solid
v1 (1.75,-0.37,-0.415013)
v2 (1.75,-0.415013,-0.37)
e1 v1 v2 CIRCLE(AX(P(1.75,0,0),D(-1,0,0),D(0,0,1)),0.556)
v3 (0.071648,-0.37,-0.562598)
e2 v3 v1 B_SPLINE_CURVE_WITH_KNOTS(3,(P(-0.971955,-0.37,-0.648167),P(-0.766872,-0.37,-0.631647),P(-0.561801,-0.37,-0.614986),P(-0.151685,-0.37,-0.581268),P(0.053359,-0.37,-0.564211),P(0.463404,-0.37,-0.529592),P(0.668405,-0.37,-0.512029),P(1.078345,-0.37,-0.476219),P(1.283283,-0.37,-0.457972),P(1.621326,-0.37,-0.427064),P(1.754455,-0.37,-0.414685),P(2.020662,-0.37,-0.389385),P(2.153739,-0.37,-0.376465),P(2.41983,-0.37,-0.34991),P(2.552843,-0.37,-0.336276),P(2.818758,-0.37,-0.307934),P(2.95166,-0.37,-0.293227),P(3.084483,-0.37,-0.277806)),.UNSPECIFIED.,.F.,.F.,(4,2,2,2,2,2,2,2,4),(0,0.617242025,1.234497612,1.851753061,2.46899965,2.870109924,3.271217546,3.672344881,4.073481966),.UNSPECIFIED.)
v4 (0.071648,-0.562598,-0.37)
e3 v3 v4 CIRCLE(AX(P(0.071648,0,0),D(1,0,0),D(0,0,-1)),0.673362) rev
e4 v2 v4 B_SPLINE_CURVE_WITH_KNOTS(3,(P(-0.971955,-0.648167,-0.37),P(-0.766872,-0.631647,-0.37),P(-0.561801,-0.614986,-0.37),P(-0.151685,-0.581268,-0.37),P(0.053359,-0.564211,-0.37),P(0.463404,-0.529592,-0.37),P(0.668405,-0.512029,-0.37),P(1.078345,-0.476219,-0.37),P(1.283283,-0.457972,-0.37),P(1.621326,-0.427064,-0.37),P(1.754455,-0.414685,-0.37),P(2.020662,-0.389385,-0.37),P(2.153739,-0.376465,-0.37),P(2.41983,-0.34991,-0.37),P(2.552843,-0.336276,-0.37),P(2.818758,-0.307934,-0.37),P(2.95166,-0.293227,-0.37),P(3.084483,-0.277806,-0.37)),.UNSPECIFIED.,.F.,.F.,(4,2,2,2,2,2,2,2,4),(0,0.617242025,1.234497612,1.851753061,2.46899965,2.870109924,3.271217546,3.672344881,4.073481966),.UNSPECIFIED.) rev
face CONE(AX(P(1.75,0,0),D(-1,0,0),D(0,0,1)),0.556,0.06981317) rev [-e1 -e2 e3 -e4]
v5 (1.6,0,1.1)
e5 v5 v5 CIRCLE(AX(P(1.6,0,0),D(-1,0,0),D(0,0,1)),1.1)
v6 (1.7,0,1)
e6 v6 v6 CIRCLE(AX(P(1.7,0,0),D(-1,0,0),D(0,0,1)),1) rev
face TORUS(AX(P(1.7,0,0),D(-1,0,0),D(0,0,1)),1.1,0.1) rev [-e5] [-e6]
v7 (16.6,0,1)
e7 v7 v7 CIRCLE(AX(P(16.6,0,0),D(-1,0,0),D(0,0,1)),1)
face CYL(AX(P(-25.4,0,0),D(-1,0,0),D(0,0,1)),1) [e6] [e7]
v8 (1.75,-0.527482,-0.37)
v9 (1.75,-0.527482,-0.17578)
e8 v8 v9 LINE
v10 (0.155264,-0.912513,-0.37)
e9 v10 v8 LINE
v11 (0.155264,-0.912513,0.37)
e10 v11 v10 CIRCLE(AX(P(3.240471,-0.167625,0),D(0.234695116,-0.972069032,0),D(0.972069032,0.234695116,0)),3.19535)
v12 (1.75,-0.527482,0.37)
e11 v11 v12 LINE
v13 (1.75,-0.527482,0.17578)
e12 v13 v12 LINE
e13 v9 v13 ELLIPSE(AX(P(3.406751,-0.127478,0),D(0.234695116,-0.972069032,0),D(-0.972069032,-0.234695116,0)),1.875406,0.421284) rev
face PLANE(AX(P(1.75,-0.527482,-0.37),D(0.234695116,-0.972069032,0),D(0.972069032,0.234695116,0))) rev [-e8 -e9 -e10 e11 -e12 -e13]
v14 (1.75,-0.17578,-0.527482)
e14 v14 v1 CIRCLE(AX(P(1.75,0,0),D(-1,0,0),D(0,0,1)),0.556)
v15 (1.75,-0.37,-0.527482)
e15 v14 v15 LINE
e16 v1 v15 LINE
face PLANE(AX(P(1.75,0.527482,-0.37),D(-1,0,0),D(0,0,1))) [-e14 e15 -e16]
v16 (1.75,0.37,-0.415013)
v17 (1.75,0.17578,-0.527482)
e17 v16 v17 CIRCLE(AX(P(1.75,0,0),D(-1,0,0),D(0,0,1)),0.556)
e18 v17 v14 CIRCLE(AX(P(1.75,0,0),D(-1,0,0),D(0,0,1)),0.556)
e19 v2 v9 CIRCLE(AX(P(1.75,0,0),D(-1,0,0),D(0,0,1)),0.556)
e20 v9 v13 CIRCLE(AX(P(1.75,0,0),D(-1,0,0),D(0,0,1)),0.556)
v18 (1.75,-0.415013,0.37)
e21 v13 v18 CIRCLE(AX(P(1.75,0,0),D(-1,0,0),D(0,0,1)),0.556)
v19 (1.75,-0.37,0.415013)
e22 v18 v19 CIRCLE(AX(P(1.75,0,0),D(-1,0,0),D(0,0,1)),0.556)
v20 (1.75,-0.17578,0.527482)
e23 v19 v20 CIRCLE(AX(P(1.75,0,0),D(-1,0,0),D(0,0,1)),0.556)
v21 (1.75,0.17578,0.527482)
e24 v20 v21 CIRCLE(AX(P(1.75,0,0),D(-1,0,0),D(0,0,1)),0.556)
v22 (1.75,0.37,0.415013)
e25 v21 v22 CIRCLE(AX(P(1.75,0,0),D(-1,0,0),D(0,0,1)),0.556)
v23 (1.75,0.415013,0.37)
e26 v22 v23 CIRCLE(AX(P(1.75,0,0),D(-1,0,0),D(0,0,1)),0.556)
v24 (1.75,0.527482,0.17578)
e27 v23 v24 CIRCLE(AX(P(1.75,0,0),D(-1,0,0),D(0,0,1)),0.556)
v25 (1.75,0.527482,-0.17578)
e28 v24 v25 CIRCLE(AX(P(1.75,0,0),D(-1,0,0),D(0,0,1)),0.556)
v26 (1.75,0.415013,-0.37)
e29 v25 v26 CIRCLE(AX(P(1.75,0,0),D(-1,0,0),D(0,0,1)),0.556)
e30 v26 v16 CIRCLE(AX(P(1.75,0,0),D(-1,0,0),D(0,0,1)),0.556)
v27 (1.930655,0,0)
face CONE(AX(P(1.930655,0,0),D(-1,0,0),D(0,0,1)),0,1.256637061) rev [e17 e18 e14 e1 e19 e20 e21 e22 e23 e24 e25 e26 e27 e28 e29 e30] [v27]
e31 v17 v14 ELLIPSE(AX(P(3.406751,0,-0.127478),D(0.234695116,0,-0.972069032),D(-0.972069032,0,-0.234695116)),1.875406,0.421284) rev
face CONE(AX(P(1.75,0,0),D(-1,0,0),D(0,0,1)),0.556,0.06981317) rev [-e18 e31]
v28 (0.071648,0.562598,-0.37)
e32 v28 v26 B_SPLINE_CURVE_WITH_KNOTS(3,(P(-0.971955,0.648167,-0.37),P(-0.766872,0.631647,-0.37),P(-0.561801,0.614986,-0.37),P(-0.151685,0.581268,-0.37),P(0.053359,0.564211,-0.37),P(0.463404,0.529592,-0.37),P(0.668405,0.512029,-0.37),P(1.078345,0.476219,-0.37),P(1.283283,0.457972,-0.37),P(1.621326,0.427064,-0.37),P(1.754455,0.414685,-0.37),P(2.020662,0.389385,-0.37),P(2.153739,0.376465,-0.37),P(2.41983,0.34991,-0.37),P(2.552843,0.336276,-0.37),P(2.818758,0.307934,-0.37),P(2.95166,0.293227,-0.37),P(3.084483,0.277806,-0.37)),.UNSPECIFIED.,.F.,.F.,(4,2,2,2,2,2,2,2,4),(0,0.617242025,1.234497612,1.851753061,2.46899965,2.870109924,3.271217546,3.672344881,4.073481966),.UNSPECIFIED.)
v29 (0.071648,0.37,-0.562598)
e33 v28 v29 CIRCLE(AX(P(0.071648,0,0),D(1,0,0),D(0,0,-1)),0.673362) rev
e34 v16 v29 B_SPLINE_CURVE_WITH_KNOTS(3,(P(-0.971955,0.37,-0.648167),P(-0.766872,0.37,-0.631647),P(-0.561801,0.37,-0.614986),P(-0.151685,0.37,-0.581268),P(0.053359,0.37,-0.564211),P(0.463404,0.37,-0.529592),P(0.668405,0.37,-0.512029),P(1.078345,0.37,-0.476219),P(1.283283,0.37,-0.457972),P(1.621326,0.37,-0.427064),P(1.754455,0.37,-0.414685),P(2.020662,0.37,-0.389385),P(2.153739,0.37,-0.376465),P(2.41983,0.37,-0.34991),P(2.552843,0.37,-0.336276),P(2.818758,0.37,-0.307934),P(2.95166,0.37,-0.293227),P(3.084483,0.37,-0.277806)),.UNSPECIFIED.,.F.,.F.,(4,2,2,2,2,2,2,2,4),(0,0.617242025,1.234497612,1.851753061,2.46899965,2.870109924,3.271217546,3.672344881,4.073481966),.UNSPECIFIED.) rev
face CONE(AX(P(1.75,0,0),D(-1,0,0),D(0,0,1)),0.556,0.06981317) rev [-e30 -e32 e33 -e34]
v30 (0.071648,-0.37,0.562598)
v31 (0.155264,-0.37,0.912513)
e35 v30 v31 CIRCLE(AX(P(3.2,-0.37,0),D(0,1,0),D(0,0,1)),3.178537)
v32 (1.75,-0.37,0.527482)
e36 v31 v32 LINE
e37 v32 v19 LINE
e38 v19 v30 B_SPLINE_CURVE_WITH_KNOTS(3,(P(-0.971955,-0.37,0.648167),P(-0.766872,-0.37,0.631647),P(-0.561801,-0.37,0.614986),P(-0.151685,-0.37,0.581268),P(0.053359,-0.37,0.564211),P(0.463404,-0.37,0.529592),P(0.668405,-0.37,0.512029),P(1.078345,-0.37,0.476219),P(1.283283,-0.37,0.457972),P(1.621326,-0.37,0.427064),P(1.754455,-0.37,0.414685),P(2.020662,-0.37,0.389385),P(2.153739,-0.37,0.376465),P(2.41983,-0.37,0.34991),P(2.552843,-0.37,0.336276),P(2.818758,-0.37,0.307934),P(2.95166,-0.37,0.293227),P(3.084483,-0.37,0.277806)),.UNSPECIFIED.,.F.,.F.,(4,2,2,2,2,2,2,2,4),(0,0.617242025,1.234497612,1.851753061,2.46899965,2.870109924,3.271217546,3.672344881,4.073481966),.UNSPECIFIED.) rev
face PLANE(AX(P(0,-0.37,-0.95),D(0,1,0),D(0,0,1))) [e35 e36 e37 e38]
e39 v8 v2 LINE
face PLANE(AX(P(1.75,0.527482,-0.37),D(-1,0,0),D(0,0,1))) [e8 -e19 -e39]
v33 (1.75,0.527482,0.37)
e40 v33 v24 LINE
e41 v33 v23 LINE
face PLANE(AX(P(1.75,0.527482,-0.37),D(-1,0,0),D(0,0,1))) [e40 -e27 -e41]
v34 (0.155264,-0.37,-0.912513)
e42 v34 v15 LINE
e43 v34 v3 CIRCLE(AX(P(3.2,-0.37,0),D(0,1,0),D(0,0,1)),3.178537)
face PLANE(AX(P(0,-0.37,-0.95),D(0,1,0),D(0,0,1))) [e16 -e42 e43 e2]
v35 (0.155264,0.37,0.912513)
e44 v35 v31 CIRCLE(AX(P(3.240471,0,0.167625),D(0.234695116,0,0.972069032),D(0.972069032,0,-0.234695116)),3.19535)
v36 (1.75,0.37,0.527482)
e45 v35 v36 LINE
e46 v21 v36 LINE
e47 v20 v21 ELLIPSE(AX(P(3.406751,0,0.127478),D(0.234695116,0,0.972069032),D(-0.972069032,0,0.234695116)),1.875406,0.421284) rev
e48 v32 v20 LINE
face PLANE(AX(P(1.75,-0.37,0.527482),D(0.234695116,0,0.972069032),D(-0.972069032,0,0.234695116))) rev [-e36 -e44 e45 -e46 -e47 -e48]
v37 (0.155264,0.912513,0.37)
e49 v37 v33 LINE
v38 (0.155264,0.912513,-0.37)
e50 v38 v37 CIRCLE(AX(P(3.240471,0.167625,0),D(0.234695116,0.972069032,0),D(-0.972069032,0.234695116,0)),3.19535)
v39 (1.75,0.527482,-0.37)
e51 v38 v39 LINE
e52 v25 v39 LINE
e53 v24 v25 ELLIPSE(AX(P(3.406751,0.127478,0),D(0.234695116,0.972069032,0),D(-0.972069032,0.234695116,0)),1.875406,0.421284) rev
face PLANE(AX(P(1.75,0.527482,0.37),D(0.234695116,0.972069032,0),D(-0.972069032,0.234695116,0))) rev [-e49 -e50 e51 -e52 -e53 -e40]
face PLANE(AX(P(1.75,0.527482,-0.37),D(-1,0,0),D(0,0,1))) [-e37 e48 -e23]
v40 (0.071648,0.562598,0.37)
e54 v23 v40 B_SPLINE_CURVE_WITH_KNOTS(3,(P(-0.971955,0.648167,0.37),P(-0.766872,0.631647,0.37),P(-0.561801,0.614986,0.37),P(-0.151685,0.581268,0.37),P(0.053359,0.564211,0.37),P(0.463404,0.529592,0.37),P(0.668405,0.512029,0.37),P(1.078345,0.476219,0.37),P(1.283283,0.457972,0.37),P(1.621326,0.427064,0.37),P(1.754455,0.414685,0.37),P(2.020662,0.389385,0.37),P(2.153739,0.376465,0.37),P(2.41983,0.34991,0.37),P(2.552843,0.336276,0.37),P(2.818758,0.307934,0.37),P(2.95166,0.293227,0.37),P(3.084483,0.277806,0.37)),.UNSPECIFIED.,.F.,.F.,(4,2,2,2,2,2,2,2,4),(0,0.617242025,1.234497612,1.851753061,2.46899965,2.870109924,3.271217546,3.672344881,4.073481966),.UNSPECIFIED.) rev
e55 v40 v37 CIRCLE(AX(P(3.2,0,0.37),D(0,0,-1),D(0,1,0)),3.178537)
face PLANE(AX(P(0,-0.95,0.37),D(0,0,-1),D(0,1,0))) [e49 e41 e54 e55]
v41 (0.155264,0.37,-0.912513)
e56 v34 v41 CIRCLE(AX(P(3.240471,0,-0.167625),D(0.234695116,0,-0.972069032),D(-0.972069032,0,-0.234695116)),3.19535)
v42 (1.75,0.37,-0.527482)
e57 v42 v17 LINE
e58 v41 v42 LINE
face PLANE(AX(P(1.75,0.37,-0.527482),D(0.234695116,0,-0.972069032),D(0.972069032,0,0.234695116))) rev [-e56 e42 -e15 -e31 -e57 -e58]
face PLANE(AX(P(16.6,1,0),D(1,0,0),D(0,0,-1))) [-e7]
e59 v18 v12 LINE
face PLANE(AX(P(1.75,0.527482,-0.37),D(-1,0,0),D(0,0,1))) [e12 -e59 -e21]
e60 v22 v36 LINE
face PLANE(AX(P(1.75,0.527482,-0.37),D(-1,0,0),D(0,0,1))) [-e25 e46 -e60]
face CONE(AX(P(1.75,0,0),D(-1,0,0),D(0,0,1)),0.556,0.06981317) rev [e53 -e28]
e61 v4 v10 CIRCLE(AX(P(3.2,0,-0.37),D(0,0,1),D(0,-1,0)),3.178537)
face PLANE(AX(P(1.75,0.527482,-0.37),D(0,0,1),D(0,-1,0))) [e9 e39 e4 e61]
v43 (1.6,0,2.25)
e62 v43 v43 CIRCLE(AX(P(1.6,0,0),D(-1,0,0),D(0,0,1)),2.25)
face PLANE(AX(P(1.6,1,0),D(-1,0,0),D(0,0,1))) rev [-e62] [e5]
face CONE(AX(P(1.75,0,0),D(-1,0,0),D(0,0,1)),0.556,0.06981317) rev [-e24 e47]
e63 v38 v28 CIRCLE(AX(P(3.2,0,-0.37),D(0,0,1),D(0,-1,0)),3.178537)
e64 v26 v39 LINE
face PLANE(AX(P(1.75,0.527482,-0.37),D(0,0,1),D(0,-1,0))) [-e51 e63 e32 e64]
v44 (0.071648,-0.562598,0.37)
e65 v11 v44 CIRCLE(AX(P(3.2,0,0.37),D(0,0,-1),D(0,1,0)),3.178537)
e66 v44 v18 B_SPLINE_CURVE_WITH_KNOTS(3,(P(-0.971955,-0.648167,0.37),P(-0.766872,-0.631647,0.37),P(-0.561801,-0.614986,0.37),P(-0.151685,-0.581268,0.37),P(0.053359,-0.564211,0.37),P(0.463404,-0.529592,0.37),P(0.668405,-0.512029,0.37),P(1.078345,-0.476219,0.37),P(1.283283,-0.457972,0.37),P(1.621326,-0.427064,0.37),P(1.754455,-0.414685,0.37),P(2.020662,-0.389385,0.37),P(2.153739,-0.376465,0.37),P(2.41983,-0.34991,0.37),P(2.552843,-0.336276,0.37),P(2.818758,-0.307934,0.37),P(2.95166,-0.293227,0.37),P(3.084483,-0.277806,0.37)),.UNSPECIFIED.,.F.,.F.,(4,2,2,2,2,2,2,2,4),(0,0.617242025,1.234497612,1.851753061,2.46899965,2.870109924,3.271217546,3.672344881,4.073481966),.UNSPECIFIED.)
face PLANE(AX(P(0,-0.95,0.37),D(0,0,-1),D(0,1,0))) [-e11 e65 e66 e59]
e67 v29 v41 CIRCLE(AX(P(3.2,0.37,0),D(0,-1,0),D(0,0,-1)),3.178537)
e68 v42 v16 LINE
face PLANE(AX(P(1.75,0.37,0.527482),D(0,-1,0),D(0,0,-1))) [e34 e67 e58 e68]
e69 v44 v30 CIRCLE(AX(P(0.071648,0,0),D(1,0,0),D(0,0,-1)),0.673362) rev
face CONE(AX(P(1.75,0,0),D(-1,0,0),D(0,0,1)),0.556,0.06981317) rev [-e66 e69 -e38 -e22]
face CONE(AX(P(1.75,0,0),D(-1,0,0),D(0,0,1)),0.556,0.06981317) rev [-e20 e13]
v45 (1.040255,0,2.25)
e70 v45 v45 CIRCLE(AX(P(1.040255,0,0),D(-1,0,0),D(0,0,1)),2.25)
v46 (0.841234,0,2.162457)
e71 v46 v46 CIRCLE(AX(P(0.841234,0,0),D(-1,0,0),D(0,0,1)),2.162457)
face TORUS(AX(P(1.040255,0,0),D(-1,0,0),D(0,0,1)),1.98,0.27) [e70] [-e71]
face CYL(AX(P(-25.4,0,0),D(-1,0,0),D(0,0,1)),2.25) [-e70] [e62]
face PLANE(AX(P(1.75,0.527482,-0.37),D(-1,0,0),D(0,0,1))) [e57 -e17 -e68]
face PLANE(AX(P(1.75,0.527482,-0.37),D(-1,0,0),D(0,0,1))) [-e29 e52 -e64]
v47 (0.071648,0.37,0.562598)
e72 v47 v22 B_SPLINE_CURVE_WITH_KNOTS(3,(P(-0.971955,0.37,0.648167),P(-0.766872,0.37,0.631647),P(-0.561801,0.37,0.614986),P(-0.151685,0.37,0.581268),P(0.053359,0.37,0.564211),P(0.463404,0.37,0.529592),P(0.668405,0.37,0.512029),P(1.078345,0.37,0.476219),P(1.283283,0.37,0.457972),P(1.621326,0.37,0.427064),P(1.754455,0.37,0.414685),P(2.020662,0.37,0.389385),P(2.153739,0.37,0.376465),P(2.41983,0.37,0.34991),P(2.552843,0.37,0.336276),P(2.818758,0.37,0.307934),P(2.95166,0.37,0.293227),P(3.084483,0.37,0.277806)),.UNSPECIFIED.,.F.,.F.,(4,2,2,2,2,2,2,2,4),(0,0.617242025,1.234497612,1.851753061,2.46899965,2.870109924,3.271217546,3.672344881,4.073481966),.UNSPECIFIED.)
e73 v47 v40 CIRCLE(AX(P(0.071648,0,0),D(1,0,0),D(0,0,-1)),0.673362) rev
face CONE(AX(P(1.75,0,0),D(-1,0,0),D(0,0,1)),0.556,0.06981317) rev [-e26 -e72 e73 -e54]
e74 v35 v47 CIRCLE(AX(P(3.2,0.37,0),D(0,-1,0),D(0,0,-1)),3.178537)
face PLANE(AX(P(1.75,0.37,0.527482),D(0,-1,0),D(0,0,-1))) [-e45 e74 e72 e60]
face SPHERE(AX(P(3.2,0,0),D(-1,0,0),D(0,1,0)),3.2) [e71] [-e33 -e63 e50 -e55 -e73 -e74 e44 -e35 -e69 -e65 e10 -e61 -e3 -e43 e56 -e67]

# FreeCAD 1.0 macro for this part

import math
import FreeCAD as App
import Part
import Sketcher
Q = App.Units.Quantity


def edges_at(feature, points):
    """Names of the edges that pass closest to the given points."""
    edges = feature.Shape.Edges
    near = lambda p: min(range(len(edges)), key=lambda i: edges[i].distToShape(Part.Vertex(*p))[0])
    return sorted({f"Edge{near(p) + 1}" for p in points})


def add_polygon(sketch, points):
    """Adds a closed chain of lines whose ends are joined by coincident constraints."""
    first, n = sketch.GeometryCount, len(points)
    for a, b in zip(points, points[1:] + points[:1]):
        sketch.addGeometry(Part.LineSegment(App.Vector(*a, 0), App.Vector(*b, 0)), False)
    for i in range(n):
        sketch.addConstraint(Sketcher.Constraint("Coincident", first + i, 2, first + (i + 1) % n, 1))

doc = App.newDocument("Part")
body = doc.addObject("PartDesign::Body", "Body")

# Sketch on XY plane
sketch1 = body.newObject("Sketcher::SketchObject", "Sketch")
sketch1.AttachmentSupport = (doc.getObject("XY_Plane"), [""])
sketch1.MapMode = "FlatFace"
sketch1.addGeometry([
    Part.LineSegment(App.Vector(1.6, 1, 0), App.Vector(1.6, 2.25, 0)),  # 0
    Part.LineSegment(App.Vector(1.6, 2.25, 0), App.Vector(1.040255, 2.25, 0)),  # 1
    Part.ArcOfCircle(Part.Circle(App.Vector(1.040255, 1.98, 0), App.Vector(0, 0, 1), 0.27), math.radians(90), math.radians(137.486188)),  # 2
    Part.ArcOfCircle(Part.Circle(App.Vector(3.2, 0, 0), App.Vector(0, 0, 1), 3.2), math.radians(137.486188), math.radians(180)),  # 3
    Part.LineSegment(App.Vector(0, 0, 0), App.Vector(16.6, 0, 0)),  # 4
    Part.LineSegment(App.Vector(16.6, 0, 0), App.Vector(16.6, 1, 0)),  # 5
    Part.LineSegment(App.Vector(16.6, 1, 0), App.Vector(1.6, 1, 0)),  # 6
], False)
sketch1.addConstraint([
    Sketcher.Constraint("Coincident", 0, 2, 1, 1),
    Sketcher.Constraint("Tangent", 1, 2, 2, 1),
    Sketcher.Constraint("Tangent", 2, 2, 3, 1),
    Sketcher.Constraint("Coincident", 3, 2, 4, 1),
    Sketcher.Constraint("Coincident", 4, 2, 5, 1),
    Sketcher.Constraint("Coincident", 5, 2, 6, 1),
    Sketcher.Constraint("Coincident", 6, 2, 0, 1),
    Sketcher.Constraint("Vertical", 0),
    Sketcher.Constraint("Horizontal", 1),
    Sketcher.Constraint("Horizontal", 4),
    Sketcher.Constraint("Vertical", 5),
    Sketcher.Constraint("Horizontal", 6),
    Sketcher.Constraint("Coincident", 3, 2, -1, 1),
    Sketcher.Constraint("PointOnObject", 3, 3, -1),
    Sketcher.Constraint("Radius", 3, 3.2),
    Sketcher.Constraint("DistanceX", 6, 2, 6, 1, 15.0),
    Sketcher.Constraint("DistanceY", 5, 1, 5, 2, 1.0),
    Sketcher.Constraint("Radius", 2, 0.27),
    Sketcher.Constraint("DistanceX", 4, 1, 4, 2, 16.6),
    Sketcher.Constraint("DistanceY", 0, 1, 0, 2, 1.25),
])
revolution = body.newObject("PartDesign::Revolution", "Revolution")
revolution.Profile = sketch1
revolution.ReferenceAxis = (sketch1, ["H_Axis"])
revolution.Angle = 360
doc.recompute()

fillet = body.newObject("PartDesign::Fillet", "Fillet")
fillet.Base = (revolution, edges_at(revolution, [(1.6, 0, -1)]))
fillet.Radius = 0.1

# Sketch on YZ plane
sketch2 = body.newObject("Sketcher::SketchObject", "Sketch001")
sketch2.AttachmentSupport = (doc.getObject("YZ_Plane"), [""])
sketch2.MapMode = "FlatFace"
add_polygon(sketch2, [(-0.95, 0.37), (-0.95, -0.37), (0.95, -0.37), (0.95, 0.37)])  # lines 0-3
sketch2.addConstraint([
    Sketcher.Constraint("Vertical", 0),
    Sketcher.Constraint("Horizontal", 1),
    Sketcher.Constraint("Vertical", 2),
    Sketcher.Constraint("Horizontal", 3),
    Sketcher.Constraint("Symmetric", 0, 2, 2, 2, -1, 1),
    Sketcher.Constraint("DistanceX", 1, 1, 1, 2, 1.9),
    Sketcher.Constraint("DistanceY", 0, 2, 0, 1, 0.74),
])

# Sketch on YZ plane
sketch3 = body.newObject("Sketcher::SketchObject", "Sketch002")
sketch3.AttachmentSupport = (doc.getObject("YZ_Plane"), [""])
sketch3.MapMode = "FlatFace"
sketch3.AttachmentOffset = App.Placement(App.Vector(0, 0, 1.75), App.Rotation())
add_polygon(sketch3, [(-0.527482, 0.37), (-0.527482, -0.37), (0.527482, -0.37), (0.527482, 0.37)])  # lines 0-3
sketch3.addConstraint([
    Sketcher.Constraint("Vertical", 0),
    Sketcher.Constraint("Horizontal", 1),
    Sketcher.Constraint("Vertical", 2),
    Sketcher.Constraint("Horizontal", 3),
    Sketcher.Constraint("Symmetric", 0, 2, 2, 2, -1, 1),
    Sketcher.Constraint("DistanceY", 0, 2, 0, 1, 0.74),
    Sketcher.Constraint("DistanceX", 1, 1, 1, 2, 1.054964),
])

subtractiveloft = body.newObject("PartDesign::SubtractiveLoft", "SubtractiveLoft")
subtractiveloft.Profile = sketch2
subtractiveloft.Sections = [sketch3]
doc.recompute()

polarpattern = body.newObject("PartDesign::PolarPattern", "PolarPattern")
polarpattern.Originals = [subtractiveloft]
polarpattern.Axis = (doc.getObject("X_Axis"), [""])
polarpattern.Angle = 90
polarpattern.Occurrences = 2
body.Tip = polarpattern

# Sketch on XY plane
sketch4 = body.newObject("Sketcher::SketchObject", "Sketch003")
sketch4.AttachmentSupport = (doc.getObject("XY_Plane"), [""])
sketch4.MapMode = "FlatFace"
add_polygon(sketch4, [(0, 0.678372), (0, 0), (1.930655, 0), (1.75, 0.556)])  # lines 0-3
sketch4.addConstraint([
    Sketcher.Constraint("Vertical", 0),
    Sketcher.Constraint("Horizontal", 1),
    Sketcher.Constraint("Coincident", 0, 2, -1, 1),
    Sketcher.Constraint("Angle", 2, Q("108 deg")),
    Sketcher.Constraint("Angle", 3, Q("176 deg")),
    Sketcher.Constraint("DistanceX", -1, 1, 2, 2, 1.75),
    Sketcher.Constraint("DistanceY", -1, 1, 2, 2, 0.556),
])
groove = body.newObject("PartDesign::Groove", "Groove")
groove.Profile = sketch4
groove.ReferenceAxis = (sketch4, ["H_Axis"])
groove.Angle = 360

doc.recompute()
